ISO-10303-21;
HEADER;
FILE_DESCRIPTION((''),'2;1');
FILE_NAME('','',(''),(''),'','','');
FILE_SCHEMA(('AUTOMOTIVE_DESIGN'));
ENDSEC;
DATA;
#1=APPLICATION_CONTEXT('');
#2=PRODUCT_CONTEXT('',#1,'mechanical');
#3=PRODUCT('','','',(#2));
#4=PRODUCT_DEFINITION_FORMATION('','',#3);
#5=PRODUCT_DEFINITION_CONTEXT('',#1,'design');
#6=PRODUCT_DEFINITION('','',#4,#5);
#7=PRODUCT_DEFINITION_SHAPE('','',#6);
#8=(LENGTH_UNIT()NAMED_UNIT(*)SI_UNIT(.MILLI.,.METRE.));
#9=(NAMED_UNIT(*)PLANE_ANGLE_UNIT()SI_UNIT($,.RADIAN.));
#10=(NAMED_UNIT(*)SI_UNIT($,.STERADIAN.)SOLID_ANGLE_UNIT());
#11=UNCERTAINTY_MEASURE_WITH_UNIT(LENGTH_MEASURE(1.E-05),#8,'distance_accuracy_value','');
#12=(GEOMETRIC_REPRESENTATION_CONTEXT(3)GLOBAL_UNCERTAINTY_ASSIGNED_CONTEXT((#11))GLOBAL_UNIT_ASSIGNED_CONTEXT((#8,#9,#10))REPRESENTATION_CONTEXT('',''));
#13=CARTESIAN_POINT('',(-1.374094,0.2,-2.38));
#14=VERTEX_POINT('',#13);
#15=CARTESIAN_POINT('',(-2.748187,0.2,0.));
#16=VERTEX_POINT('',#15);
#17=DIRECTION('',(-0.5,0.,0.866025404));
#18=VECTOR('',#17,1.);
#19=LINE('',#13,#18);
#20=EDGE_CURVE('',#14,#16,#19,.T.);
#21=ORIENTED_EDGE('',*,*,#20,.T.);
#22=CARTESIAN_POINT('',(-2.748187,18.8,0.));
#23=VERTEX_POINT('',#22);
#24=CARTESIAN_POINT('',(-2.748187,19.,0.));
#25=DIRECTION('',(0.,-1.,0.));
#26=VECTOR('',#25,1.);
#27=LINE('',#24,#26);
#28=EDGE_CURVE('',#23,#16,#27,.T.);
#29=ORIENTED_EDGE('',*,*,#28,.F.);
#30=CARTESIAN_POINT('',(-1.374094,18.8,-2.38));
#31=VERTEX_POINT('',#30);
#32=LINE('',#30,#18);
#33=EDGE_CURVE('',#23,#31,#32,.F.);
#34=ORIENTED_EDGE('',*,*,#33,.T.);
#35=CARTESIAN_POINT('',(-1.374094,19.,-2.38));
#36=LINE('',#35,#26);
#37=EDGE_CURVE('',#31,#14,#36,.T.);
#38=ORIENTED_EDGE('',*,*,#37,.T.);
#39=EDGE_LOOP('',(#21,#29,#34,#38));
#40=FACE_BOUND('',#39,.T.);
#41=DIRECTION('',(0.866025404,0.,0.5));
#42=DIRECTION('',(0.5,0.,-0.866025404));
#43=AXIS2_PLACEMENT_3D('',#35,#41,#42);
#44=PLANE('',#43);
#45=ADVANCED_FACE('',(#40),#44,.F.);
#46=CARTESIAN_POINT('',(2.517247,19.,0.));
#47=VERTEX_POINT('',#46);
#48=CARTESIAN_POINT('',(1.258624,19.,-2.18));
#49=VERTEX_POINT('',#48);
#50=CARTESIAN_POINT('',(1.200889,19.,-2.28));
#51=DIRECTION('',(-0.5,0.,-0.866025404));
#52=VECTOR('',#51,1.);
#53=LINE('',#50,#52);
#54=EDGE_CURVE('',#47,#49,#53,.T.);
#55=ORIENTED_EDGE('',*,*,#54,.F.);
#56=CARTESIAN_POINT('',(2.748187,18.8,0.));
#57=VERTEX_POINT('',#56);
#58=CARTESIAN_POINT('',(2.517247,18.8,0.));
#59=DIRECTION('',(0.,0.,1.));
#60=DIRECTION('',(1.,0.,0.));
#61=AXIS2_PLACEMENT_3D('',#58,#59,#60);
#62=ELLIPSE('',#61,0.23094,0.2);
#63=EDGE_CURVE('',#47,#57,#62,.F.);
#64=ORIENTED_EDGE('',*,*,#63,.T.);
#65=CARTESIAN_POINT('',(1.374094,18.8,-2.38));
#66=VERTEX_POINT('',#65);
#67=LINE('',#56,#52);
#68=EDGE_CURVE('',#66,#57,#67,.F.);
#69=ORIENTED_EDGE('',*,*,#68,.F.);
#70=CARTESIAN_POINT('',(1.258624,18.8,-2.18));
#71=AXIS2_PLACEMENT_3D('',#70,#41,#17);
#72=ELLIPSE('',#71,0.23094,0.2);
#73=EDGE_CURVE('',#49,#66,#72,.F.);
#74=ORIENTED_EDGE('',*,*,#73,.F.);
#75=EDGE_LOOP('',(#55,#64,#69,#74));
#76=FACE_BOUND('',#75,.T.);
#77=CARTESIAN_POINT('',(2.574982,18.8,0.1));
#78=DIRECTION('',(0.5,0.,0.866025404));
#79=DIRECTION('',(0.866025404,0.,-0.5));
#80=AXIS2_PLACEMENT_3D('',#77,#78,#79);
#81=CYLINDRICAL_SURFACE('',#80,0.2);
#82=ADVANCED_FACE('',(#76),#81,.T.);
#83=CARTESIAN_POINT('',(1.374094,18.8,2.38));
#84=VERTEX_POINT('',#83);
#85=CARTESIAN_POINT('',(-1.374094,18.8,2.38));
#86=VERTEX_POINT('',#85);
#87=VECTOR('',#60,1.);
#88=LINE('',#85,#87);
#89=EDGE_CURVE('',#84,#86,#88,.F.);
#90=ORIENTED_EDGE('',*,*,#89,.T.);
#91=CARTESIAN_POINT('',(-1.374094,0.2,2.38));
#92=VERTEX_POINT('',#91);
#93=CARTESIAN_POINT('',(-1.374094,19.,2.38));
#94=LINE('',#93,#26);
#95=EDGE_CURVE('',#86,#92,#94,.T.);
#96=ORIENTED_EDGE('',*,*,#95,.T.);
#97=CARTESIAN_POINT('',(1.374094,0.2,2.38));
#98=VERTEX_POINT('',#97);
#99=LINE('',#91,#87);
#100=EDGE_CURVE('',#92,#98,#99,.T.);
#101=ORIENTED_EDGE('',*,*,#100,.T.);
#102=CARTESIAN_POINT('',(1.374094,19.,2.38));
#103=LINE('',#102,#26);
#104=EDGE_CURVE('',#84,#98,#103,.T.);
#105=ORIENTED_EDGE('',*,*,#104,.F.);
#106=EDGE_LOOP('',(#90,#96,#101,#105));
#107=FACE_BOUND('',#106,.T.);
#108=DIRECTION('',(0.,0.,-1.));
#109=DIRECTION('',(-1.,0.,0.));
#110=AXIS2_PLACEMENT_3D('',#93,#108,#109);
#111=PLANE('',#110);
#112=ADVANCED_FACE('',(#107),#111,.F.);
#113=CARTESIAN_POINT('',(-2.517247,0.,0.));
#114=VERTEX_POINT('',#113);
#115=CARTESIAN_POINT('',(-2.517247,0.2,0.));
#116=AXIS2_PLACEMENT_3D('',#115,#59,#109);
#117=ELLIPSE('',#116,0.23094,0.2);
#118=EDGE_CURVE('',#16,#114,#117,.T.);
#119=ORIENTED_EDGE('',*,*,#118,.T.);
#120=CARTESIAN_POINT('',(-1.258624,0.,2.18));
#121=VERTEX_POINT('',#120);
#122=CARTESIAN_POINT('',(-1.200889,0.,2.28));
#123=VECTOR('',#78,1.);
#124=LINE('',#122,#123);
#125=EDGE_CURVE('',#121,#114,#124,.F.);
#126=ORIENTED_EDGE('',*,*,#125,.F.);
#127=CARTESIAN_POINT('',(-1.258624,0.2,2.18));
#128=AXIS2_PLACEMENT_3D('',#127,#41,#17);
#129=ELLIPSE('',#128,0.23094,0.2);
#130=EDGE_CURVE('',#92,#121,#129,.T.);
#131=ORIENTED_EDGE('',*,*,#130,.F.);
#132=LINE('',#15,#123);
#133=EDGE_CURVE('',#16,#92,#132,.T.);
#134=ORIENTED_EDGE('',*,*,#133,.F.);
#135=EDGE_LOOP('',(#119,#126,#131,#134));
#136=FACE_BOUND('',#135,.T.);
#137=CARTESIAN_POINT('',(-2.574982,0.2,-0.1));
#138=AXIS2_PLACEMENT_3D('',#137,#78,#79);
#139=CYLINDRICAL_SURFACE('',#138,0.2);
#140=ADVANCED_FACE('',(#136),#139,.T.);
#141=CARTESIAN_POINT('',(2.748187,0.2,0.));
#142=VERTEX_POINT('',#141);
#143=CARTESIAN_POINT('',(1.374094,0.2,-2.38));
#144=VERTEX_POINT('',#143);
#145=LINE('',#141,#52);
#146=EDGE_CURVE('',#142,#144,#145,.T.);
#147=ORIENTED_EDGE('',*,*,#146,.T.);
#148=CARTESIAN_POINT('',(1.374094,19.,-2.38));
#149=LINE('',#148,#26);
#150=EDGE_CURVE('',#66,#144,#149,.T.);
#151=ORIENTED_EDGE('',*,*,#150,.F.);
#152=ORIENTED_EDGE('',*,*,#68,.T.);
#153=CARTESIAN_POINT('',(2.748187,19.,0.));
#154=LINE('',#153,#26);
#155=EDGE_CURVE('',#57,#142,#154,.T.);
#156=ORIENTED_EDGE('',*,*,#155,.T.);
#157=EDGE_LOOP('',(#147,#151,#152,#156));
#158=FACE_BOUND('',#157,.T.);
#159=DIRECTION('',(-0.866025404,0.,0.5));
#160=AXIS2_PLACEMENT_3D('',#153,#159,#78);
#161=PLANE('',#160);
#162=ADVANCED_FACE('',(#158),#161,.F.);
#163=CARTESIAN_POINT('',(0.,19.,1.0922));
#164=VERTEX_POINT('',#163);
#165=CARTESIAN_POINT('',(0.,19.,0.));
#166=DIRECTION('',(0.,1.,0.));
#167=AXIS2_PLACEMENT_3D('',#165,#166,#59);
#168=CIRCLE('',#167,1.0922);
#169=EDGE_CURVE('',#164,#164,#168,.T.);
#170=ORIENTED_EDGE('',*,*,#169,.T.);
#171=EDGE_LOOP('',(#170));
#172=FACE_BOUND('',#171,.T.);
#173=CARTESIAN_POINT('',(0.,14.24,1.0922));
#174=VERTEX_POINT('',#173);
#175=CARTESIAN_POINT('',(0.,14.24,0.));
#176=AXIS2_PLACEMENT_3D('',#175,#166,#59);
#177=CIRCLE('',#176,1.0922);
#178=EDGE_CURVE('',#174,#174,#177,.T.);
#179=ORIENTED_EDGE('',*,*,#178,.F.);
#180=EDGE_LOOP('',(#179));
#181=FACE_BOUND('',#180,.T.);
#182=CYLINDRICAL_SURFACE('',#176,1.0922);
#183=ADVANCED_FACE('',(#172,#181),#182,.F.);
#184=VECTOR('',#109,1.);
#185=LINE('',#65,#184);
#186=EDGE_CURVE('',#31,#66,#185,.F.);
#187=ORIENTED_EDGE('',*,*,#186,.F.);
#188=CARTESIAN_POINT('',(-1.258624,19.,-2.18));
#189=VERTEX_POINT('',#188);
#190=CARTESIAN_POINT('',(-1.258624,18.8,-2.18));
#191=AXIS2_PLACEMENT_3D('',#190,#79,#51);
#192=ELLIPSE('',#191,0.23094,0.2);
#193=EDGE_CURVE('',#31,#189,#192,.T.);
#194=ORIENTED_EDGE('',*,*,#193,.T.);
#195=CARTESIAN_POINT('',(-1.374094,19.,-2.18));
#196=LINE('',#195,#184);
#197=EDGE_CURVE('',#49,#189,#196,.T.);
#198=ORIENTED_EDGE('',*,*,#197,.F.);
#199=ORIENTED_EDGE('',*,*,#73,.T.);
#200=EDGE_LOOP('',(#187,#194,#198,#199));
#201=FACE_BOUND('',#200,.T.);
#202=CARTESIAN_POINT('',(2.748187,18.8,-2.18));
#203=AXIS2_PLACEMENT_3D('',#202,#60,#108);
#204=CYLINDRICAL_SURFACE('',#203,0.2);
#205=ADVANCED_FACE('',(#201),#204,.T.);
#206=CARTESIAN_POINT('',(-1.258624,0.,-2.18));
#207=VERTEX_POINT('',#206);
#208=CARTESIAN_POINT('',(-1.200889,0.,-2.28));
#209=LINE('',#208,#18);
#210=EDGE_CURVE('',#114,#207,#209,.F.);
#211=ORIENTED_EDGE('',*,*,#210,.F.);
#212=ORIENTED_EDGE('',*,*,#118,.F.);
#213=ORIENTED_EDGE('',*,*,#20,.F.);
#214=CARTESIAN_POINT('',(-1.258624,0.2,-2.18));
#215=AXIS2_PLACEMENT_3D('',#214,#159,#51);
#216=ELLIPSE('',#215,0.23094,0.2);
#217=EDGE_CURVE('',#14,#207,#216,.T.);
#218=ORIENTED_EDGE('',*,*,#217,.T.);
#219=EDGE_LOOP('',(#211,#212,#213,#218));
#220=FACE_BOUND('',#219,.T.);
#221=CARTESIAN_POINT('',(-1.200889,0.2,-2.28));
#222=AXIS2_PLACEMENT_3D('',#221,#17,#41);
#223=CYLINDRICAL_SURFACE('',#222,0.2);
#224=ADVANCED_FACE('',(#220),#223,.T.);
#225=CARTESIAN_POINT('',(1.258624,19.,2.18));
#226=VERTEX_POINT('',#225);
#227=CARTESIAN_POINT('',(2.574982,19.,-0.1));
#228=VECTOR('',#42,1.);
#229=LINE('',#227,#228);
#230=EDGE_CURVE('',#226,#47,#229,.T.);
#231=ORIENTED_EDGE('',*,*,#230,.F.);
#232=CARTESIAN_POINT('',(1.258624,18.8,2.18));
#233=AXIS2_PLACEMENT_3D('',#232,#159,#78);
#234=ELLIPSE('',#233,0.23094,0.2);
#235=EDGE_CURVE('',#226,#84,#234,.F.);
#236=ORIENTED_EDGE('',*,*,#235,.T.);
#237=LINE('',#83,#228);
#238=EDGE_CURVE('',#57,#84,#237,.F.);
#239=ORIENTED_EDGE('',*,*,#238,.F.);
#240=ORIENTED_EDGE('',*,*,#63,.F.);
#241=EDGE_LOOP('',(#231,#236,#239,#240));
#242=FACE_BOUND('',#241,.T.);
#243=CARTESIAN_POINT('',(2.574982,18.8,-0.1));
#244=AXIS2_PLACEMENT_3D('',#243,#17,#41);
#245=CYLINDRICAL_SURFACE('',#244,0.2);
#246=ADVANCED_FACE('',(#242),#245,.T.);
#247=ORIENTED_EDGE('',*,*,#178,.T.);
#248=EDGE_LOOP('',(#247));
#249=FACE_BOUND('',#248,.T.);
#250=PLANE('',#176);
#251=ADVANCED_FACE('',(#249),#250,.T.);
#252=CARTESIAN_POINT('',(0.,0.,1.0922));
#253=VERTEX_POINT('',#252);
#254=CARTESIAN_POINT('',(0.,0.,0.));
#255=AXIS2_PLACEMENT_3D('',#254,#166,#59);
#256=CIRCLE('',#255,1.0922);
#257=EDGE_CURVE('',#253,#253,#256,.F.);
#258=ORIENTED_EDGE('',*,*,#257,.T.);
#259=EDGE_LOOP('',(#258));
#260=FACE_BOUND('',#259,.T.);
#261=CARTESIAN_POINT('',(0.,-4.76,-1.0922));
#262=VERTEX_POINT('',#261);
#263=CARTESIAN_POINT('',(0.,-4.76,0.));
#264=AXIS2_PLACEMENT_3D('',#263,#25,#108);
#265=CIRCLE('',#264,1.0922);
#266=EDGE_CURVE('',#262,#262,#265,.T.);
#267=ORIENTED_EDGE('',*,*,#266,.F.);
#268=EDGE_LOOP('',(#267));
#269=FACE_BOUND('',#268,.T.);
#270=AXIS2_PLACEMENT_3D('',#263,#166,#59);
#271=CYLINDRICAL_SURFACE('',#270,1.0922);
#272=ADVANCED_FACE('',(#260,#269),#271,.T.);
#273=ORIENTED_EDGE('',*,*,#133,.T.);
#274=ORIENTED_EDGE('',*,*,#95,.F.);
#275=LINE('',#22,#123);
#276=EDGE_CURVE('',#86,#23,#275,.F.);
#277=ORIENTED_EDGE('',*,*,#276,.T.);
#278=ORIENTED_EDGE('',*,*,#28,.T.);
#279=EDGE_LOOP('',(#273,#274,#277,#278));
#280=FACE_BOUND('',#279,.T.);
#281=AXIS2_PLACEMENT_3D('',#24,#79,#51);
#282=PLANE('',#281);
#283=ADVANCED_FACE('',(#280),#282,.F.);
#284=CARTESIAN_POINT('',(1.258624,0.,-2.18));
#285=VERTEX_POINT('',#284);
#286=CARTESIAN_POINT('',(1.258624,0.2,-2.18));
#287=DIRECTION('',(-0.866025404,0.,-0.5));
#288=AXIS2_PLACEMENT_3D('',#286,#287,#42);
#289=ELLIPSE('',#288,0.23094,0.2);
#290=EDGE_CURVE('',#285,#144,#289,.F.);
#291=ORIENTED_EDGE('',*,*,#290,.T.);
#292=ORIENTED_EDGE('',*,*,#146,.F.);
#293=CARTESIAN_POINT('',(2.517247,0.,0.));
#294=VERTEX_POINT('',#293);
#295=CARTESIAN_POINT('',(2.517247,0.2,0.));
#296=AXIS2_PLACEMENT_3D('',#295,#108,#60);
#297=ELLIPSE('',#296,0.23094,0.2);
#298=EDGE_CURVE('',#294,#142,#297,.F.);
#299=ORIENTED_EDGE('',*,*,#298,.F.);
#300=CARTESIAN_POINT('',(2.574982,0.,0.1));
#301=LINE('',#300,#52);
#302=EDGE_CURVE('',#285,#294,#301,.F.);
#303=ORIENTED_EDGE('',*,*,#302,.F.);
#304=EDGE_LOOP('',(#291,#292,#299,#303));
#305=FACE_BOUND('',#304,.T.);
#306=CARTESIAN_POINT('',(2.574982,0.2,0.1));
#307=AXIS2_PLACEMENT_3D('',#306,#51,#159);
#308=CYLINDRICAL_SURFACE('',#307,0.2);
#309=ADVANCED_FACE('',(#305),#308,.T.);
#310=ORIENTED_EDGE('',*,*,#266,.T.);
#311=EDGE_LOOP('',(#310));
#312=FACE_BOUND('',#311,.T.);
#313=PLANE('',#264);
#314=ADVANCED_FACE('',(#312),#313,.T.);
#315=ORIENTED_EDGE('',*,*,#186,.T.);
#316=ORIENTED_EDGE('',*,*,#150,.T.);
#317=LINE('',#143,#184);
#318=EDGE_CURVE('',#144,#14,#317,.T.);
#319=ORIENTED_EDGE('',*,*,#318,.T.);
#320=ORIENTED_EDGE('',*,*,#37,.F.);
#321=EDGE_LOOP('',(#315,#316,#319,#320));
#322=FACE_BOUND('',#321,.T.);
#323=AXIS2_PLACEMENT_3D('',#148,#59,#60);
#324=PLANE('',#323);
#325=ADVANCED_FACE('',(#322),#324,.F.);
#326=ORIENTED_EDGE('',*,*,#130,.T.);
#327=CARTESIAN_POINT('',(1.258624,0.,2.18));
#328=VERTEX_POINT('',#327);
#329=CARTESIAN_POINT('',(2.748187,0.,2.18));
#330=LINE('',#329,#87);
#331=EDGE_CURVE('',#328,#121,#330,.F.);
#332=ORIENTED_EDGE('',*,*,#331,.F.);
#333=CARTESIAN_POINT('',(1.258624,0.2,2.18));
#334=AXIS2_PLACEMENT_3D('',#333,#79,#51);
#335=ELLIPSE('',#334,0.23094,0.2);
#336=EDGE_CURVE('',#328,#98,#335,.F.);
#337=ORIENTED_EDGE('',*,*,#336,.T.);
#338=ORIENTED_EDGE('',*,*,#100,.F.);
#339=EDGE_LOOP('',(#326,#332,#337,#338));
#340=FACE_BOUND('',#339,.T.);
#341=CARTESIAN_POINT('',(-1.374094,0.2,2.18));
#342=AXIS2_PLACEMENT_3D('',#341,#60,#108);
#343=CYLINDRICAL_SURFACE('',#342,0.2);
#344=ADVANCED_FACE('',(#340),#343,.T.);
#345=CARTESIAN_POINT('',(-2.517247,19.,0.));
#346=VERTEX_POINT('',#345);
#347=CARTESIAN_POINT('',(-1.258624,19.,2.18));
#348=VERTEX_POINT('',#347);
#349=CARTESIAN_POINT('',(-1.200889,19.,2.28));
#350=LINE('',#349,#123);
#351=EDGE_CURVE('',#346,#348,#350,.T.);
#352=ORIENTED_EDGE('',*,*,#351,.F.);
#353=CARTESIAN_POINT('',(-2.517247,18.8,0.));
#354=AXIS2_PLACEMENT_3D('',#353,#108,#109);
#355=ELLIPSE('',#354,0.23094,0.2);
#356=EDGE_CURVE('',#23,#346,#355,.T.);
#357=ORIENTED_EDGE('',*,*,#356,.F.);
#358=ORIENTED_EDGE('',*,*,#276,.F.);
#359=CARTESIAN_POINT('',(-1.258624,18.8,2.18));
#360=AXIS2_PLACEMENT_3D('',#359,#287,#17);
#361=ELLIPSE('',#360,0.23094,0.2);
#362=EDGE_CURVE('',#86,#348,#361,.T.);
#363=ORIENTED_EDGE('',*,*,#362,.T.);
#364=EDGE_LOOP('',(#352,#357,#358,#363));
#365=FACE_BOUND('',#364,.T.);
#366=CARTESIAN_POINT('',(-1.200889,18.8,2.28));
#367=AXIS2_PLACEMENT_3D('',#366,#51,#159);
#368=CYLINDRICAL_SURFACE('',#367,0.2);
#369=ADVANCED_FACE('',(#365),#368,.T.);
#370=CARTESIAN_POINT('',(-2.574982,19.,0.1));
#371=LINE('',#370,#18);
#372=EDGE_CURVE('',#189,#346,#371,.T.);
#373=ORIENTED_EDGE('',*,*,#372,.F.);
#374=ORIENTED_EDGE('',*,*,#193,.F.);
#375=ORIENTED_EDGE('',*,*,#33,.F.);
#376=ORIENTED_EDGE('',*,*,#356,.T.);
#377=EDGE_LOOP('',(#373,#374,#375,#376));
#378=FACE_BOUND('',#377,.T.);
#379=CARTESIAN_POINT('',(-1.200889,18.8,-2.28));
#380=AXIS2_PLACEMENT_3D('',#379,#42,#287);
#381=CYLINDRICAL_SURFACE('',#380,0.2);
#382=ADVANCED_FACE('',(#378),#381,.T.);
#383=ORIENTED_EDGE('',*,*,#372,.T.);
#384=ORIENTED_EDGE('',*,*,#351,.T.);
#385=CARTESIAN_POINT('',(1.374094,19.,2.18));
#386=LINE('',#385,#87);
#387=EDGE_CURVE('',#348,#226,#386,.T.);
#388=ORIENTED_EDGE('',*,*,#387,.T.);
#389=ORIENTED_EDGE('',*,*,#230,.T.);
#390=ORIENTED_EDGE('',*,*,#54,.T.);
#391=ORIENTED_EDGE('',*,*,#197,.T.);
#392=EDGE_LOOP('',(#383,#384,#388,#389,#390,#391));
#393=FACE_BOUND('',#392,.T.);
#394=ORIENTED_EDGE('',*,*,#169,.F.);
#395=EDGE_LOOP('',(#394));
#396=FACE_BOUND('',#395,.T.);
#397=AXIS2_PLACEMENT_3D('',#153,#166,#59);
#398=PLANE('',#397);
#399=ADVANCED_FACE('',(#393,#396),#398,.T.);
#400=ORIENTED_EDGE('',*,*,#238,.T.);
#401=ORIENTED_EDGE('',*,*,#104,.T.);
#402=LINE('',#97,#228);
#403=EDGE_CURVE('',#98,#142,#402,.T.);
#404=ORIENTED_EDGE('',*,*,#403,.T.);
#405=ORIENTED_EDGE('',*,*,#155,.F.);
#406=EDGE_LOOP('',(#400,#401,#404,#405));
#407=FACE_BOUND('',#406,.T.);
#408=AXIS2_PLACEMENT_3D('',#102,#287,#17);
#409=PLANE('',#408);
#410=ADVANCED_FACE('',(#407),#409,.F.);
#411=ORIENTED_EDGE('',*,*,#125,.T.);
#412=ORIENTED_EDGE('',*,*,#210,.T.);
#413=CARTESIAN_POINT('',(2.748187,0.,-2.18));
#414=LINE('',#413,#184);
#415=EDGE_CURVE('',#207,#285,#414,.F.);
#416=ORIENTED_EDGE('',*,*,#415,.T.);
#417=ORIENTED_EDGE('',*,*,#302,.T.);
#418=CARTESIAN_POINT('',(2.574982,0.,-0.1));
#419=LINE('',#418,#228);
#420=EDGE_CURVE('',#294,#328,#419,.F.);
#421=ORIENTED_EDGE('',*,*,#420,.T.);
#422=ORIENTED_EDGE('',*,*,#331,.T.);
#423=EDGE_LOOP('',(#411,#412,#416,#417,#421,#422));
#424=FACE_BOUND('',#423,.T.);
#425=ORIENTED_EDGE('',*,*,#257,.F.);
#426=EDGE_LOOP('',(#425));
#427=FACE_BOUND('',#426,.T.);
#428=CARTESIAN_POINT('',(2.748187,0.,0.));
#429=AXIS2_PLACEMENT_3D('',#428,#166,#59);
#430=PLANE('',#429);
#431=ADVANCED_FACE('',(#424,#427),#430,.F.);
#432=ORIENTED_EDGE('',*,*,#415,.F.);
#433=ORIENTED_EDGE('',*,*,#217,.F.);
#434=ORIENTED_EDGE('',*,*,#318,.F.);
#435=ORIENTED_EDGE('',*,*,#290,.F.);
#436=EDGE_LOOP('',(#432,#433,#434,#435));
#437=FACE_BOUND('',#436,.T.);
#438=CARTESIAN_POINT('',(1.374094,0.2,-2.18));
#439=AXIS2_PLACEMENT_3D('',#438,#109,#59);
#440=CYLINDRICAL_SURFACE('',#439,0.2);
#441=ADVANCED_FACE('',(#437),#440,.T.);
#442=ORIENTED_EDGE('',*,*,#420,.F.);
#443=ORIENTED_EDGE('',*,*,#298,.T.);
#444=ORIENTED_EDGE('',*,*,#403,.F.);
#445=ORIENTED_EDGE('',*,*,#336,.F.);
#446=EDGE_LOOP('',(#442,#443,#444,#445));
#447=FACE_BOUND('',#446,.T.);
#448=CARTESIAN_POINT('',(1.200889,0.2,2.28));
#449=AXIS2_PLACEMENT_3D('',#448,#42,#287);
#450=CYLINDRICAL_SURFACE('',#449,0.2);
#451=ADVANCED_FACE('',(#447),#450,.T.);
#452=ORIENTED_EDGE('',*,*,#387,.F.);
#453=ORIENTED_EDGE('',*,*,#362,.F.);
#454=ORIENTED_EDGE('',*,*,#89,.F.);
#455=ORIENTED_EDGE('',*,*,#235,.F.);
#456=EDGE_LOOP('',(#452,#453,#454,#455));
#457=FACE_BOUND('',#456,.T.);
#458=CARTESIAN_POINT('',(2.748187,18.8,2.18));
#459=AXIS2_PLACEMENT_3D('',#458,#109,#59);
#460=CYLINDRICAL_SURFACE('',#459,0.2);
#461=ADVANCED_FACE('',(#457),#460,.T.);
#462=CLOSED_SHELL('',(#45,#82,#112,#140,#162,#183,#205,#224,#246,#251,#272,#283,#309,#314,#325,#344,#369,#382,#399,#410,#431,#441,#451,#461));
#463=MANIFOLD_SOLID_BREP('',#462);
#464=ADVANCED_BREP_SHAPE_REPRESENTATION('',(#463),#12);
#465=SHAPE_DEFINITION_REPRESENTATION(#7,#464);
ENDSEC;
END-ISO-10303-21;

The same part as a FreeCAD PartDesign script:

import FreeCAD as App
import Part
import Sketcher

V = App.Vector
Q = App.Units.Quantity


def edges_at(feature, points):
    """Names of the edges that pass closest to the given points."""
    edges = feature.Shape.Edges
    near = lambda p: min(range(len(edges)), key=lambda i: edges[i].distToShape(Part.Vertex(*p))[0])
    return sorted({f"Edge{near(p) + 1}" for p in points})


def add_polygon(sketch, points):
    """Adds a closed chain of lines whose ends are joined by coincident constraints."""
    first, n = sketch.GeometryCount, len(points)
    for a, b in zip(points, points[1:] + points[:1]):
        sketch.addGeometry(Part.LineSegment(App.Vector(*a, 0), App.Vector(*b, 0)), False)
    for i in range(n):
        sketch.addConstraint(Sketcher.Constraint("Coincident", first + i, 2, first + (i + 1) % n, 1))

doc = App.newDocument("Part")
body = doc.addObject("PartDesign::Body", "Body")

# Sketch on XZ plane
sketch1 = doc.addObject("Sketcher::SketchObject", "Sketch")
body.addObject(sketch1)
sketch1.AttachmentSupport = (doc.XZ_Plane, [""])
sketch1.MapMode = "FlatFace"
add_polygon(sketch1, [(2.748187, 0), (1.374094, -2.38), (-1.374094, -2.38), (-2.748187, 0), (-1.374094, 2.38), (1.374094, 2.38)])  # lines 0-5
sketch1.addConstraint([
    Sketcher.Constraint("Horizontal", 1),
    Sketcher.Constraint("Horizontal", 4),
    Sketcher.Constraint("Symmetric", 0, 2, 3, 2, -1, 1),
    Sketcher.Constraint("Symmetric", 2, 2, 5, 2, -1, 1),
    Sketcher.Constraint("PointOnObject", 2, 2, -1),
    Sketcher.Constraint("Parallel", 2, 5),
    Sketcher.Constraint("Vertical", 1, 2, 3, 2),
    Sketcher.Constraint("Angle", 0, Q("-120 deg")),
    Sketcher.Constraint("DistanceY", 0, 2, -1, 1, Q("2.38 mm")),
    Sketcher.Constraint("DistanceX", 1, 2, 1, 1, Q("2.748187 mm")),
])
pad1 = doc.addObject("PartDesign::Pad", "Pad")
body.addObject(pad1)
pad1.Profile = sketch1
pad1.Length = 19
pad1.Reversed = True
doc.recompute()

fillet = doc.addObject("PartDesign::Fillet", "Fillet")
body.addObject(fillet)
fillet.Base = (pad1, edges_at(pad1, [
    (0, 19, -2.38),
    (-2.061, 19, -1.19),
    (-2.061, 19, 1.19),
    (0, 19, 2.38),
    (2.061, 19, 1.19),
    (0, 0, 2.38),
    (-2.061, 0, 1.19),
    (-2.061, 0, -1.19),
    (2.061, 19, -1.19),
    (0, 0, -2.38),
    (2.061, 0, -1.19),
    (2.061, 0, 1.19),
]))
fillet.Radius = 0.2

# Sketch on XZ plane
sketch2 = doc.addObject("Sketcher::SketchObject", "Sketch001")
body.addObject(sketch2)
sketch2.AttachmentSupport = (doc.XZ_Plane, [""])
sketch2.MapMode = "FlatFace"
sketch2.addGeometry(Part.Circle(V(0, 0, 0), V(0, 0, 1), 1.0922), False)
sketch2.addConstraint([
    Sketcher.Constraint("Coincident", 0, 3, -1, 1),
    Sketcher.Constraint("Diameter", 0, Q("2.1844 mm")),
])
pad2 = doc.addObject("PartDesign::Pad", "Pad001")
body.addObject(pad2)
pad2.Profile = sketch2
pad2.Length = 4.76

# Sketch on XZ plane
sketch3 = doc.addObject("Sketcher::SketchObject", "Sketch002")
body.addObject(sketch3)
sketch3.AttachmentSupport = (doc.XZ_Plane, [""])
sketch3.MapMode = "FlatFace"
sketch3.AttachmentOffset = App.Placement(V(0, 0, -19), App.Rotation())
sketch3.addGeometry(Part.Circle(V(0, 0, 0), V(0, 0, 1), 1.0922), False)
sketch3.addConstraint([
    Sketcher.Constraint("Coincident", 0, 3, -1, 1),
    Sketcher.Constraint("Diameter", 0, Q("2.1844 mm")),
])
pocket1 = doc.addObject("PartDesign::Pocket", "Pocket")
body.addObject(pocket1)
pocket1.Profile = sketch3
pocket1.Length = 4.76
pocket1.Reversed = True

doc.recompute()
